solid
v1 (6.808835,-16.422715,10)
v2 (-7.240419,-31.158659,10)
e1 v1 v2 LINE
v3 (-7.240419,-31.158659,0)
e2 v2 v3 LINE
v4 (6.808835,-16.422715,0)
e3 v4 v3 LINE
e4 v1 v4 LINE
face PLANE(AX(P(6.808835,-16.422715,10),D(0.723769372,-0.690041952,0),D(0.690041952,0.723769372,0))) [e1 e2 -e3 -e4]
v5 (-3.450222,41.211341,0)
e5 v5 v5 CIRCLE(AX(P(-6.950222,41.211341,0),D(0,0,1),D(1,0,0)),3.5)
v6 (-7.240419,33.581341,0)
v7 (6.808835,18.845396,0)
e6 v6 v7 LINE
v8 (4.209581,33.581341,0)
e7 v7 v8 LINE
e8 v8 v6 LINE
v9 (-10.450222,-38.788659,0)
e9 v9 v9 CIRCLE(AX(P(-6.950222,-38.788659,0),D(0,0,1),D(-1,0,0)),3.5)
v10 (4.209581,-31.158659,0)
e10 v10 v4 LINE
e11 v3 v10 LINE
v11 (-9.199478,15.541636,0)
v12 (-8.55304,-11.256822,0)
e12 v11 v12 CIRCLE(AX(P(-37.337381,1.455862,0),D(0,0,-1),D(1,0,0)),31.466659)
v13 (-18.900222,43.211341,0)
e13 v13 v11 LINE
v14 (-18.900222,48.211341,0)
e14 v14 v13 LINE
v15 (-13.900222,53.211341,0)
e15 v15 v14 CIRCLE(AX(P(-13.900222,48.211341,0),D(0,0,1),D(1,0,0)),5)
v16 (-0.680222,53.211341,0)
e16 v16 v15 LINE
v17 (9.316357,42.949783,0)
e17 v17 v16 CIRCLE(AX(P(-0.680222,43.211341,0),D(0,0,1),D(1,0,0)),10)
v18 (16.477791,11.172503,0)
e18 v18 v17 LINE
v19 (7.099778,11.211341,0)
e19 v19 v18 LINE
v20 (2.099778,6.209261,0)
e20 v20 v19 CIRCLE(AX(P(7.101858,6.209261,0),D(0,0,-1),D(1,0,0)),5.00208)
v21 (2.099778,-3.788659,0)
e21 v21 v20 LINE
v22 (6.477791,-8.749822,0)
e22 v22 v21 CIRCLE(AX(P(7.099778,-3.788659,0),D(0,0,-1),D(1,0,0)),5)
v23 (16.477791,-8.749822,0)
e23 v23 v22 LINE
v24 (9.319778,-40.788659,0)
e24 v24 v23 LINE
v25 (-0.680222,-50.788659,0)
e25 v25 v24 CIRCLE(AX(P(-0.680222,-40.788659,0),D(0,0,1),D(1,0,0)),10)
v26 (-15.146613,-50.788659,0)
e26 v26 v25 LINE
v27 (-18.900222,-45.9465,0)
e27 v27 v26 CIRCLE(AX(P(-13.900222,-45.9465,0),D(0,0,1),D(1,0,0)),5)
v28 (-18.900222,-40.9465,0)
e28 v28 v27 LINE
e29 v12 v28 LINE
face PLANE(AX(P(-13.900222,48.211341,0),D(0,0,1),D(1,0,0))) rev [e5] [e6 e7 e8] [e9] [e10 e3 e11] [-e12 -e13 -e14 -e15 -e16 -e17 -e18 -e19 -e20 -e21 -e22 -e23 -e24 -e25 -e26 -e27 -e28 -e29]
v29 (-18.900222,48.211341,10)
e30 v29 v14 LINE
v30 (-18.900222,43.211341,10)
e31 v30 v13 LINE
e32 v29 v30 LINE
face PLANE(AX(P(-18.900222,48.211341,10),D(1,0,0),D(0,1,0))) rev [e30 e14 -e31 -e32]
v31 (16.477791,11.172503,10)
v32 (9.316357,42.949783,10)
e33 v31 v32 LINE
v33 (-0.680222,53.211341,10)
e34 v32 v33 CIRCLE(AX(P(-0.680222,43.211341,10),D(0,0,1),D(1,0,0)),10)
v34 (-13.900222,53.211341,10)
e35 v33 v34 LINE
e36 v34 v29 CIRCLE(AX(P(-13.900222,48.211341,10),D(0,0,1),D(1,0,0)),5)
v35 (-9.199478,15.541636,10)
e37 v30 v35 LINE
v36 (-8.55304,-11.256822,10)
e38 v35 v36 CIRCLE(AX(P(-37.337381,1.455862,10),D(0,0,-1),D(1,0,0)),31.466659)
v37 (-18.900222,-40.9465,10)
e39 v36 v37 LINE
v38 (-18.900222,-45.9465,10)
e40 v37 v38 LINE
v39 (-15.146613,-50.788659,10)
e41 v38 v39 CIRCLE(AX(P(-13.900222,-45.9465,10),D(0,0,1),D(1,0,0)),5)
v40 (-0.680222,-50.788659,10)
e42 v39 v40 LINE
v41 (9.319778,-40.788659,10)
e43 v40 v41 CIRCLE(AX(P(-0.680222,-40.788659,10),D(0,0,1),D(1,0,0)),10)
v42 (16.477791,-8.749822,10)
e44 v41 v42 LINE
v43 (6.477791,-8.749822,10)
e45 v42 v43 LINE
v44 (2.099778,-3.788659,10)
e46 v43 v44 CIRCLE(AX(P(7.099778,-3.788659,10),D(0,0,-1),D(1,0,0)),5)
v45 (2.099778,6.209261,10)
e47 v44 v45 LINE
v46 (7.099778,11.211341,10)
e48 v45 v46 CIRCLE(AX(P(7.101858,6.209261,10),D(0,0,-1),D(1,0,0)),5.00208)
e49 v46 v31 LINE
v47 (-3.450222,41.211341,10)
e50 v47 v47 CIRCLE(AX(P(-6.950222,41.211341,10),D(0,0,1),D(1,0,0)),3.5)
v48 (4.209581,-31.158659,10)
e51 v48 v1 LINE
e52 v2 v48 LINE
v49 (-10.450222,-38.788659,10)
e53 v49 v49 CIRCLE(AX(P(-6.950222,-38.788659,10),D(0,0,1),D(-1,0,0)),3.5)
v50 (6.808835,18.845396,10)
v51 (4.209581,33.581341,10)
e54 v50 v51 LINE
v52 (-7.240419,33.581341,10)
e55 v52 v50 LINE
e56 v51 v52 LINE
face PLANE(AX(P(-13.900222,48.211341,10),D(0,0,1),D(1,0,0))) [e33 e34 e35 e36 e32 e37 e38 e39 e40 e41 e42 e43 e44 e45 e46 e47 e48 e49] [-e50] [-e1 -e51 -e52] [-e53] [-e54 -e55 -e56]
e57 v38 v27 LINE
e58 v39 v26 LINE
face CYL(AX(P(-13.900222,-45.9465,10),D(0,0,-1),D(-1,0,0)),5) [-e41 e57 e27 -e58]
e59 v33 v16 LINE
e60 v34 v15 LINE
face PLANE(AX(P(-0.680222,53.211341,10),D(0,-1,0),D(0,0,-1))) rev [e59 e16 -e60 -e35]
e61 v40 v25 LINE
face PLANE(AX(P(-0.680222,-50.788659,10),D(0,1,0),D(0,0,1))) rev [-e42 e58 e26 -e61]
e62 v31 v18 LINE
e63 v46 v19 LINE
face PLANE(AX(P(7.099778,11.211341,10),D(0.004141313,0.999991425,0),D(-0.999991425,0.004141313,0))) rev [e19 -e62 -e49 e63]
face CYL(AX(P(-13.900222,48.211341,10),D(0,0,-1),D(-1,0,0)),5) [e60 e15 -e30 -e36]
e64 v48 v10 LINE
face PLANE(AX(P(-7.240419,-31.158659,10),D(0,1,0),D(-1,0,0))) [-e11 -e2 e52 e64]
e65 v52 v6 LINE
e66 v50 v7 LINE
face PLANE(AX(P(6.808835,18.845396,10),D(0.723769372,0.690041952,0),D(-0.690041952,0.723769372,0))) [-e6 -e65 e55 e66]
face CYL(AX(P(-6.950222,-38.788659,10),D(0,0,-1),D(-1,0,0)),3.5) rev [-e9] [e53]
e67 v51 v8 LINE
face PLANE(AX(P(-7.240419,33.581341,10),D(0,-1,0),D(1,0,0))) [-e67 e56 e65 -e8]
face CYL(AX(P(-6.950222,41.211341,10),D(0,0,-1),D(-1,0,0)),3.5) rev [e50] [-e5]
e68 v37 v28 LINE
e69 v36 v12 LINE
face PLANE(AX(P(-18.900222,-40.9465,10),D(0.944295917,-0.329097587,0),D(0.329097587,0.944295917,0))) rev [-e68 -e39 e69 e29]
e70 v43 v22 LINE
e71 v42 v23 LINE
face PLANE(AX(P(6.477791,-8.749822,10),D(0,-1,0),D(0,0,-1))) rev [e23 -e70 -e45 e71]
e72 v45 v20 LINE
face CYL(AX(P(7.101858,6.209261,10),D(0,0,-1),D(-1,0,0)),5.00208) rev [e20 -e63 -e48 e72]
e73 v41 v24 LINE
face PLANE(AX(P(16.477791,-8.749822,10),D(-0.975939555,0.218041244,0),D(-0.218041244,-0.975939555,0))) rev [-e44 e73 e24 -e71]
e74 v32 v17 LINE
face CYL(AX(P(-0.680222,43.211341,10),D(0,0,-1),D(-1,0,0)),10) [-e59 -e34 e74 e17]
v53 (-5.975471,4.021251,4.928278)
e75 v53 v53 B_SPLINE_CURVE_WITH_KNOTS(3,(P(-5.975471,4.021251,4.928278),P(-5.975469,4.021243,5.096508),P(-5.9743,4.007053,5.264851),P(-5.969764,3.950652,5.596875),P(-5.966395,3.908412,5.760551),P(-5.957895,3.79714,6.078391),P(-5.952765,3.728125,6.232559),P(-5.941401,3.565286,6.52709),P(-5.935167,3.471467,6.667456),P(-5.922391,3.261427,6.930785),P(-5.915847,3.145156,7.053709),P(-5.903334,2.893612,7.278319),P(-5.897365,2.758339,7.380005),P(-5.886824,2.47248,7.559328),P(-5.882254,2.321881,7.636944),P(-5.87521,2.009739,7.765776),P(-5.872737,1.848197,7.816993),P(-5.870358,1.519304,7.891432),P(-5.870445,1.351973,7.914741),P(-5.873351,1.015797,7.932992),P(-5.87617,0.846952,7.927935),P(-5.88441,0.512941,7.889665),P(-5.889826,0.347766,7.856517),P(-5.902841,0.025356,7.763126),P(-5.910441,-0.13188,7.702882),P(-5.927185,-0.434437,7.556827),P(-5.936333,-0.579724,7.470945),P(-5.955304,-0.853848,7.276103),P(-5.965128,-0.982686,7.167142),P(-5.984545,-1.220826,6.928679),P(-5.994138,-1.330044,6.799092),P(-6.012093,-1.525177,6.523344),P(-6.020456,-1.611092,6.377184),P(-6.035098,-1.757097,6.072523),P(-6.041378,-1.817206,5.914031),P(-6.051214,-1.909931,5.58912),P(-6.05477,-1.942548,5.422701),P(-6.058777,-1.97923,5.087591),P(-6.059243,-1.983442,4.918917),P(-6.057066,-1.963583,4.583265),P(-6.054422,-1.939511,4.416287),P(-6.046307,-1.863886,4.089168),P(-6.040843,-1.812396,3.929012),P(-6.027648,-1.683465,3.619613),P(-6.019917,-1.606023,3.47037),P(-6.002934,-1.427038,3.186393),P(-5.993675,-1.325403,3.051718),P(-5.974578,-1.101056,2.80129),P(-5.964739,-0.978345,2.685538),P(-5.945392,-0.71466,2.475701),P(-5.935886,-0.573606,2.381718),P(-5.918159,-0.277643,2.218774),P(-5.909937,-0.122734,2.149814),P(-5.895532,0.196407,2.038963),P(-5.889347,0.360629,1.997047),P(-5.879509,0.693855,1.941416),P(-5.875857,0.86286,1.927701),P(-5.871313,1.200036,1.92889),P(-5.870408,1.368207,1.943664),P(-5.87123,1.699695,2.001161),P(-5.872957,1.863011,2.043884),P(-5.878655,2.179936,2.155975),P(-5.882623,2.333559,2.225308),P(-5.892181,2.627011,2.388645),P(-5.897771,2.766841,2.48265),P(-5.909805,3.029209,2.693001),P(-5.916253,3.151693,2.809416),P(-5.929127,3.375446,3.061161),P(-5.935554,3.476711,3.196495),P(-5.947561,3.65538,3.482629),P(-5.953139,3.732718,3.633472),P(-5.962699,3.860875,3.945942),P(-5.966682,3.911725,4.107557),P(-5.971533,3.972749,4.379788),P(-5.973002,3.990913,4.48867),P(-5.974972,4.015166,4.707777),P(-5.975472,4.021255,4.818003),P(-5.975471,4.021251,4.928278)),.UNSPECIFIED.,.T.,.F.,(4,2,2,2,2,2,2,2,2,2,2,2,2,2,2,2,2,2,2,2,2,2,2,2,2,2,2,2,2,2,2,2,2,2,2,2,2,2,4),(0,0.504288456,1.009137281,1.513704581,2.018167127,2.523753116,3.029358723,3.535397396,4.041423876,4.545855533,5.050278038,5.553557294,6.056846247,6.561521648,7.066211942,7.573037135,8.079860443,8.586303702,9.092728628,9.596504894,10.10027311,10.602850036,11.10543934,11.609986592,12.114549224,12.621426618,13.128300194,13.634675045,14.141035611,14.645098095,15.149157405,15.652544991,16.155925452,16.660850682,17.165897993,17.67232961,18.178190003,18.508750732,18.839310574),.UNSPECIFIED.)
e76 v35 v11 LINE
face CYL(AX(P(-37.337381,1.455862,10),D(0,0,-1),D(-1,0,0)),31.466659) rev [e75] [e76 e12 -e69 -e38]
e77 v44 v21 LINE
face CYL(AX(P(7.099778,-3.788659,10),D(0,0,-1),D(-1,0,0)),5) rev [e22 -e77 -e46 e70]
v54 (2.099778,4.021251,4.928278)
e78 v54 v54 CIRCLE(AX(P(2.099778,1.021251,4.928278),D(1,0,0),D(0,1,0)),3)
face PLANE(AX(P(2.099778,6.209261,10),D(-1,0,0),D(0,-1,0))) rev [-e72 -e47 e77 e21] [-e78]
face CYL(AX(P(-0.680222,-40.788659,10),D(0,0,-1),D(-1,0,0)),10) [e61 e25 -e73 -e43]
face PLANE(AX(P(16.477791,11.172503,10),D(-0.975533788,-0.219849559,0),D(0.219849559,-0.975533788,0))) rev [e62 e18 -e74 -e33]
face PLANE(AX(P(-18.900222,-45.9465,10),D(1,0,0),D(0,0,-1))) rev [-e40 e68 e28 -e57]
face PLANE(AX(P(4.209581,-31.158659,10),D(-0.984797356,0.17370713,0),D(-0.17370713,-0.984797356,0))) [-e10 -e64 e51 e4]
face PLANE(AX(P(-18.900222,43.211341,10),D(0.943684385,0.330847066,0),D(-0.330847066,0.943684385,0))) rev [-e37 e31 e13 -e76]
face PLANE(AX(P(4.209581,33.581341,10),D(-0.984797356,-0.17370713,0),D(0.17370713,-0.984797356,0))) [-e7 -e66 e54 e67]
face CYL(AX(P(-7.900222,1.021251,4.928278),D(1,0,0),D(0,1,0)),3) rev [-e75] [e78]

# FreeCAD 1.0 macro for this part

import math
import FreeCAD as App
import Part
import Sketcher
from FreeCAD import Vector

doc = App.newDocument("Part")
params = doc.addObject("Spreadsheet::Sheet", "Params")
for row, (alias, value) in enumerate([
    ("sketch1_diameter", "7 mm"),
    ("sketch1_radius", "10 mm"),
    ("sketch1_radius2", "5 mm"),
    ("sketch1_width", "10 mm"),
    ("sketch1_width2", "13.22 mm"),
    ("pad1_length", "10 mm"),
    ("sketch2_diameter", "6 mm"),
    ("pocket1_length", "10 mm"),
], start=1):
    params.set(f"A{row}", alias)
    params.set(f"B{row}", "=" + value)
    params.setAlias(f"B{row}", alias)

body = doc.addObject("PartDesign::Body", "Body")

sketch1 = body.newObject("Sketcher::SketchObject", "Sketch")
sketch1.AttachmentSupport = (doc.getObject("XY_Plane"), [""])
sketch1.MapMode = "FlatFace"
sketch1.addGeometry([
    Part.LineSegment(Vector(16.477791, 11.172503, 0), Vector(9.316357, 42.949783, 0)),
    Part.ArcOfCircle(Part.Circle(Vector(-0.680222, 43.211341, 0), Vector(0, 0, 1), 10), math.radians(-1.498785), math.radians(90)),
    Part.LineSegment(Vector(-0.680222, 53.211341, 0), Vector(-13.900222, 53.211341, 0)),
    Part.ArcOfCircle(Part.Circle(Vector(-13.900222, 48.211341, 0), Vector(0, 0, 1), 5), math.radians(90), math.radians(180)),
    Part.LineSegment(Vector(-18.900222, 48.211341, 0), Vector(-18.900222, 43.211341, 0)),
    Part.LineSegment(Vector(-18.900222, 43.211341, 0), Vector(-9.199478, 15.541636, 0)),
    Part.ArcOfCircle(Part.Circle(Vector(-37.337381, 1.455862, 0), Vector(0, 0, 1), 31.466659), math.radians(-23.828784), math.radians(26.592448)),
    Part.LineSegment(Vector(-8.55304, -11.256822, 0), Vector(-18.900222, -40.9465, 0)),
    Part.LineSegment(Vector(-18.900222, -40.9465, 0), Vector(-18.900222, -45.9465, 0)),
    Part.ArcOfCircle(Part.Circle(Vector(-13.900222, -45.9465, 0), Vector(0, 0, 1), 5), math.radians(-180), math.radians(-104.434802)),
    Part.LineSegment(Vector(-15.146613, -50.788659, 0), Vector(-0.680222, -50.788659, 0)),
    Part.ArcOfCircle(Part.Circle(Vector(-0.680222, -40.788659, 0), Vector(0, 0, 1), 10), math.radians(-90), math.radians(0)),
    Part.LineSegment(Vector(9.319778, -40.788659, 0), Vector(16.477791, -8.749822, 0)),
    Part.LineSegment(Vector(16.477791, -8.749822, 0), Vector(6.477791, -8.749822, 0)),
    Part.ArcOfCircle(Part.Circle(Vector(7.099778, -3.788659, 0), Vector(0, 0, 1), 5), math.radians(-180), math.radians(-97.145958)),
    Part.LineSegment(Vector(2.099778, -3.788659, 0), Vector(2.099778, 6.209261, 0)),
    Part.ArcOfCircle(Part.Circle(Vector(7.101858, 6.209261, 0), Vector(0, 0, 1), 5.00208), math.radians(90.023821), math.radians(180)),
    Part.LineSegment(Vector(7.099778, 11.211341, 0), Vector(16.477791, 11.172503, 0)),
    Part.Circle(Vector(-6.950222, -38.788659, 0), Vector(0, 0, 1), 3.5),
    Part.LineSegment(Vector(6.808835, -16.422715, 0), Vector(4.209581, -31.158659, 0)),
    Part.LineSegment(Vector(4.209581, -31.158659, 0), Vector(-7.240419, -31.158659, 0)),
    Part.LineSegment(Vector(-7.240419, -31.158659, 0), Vector(6.808835, -16.422715, 0)),
    Part.Circle(Vector(-6.950222, 41.211341, 0), Vector(0, 0, 1), 3.5),
    Part.LineSegment(Vector(6.808835, 18.845396, 0), Vector(-7.240419, 33.581341, 0)),
    Part.LineSegment(Vector(-7.240419, 33.581341, 0), Vector(4.209581, 33.581341, 0)),
    Part.LineSegment(Vector(4.209581, 33.581341, 0), Vector(6.808835, 18.845396, 0)),
], False)
sketch1.addConstraint([
    Sketcher.Constraint("Coincident", 0, 2, 1, 1),
    Sketcher.Constraint("Tangent", 1, 2, 2, 1),
    Sketcher.Constraint("Tangent", 2, 2, 3, 1),
    Sketcher.Constraint("Tangent", 3, 2, 4, 1),
    Sketcher.Constraint("Coincident", 4, 2, 5, 1),
    Sketcher.Constraint("Coincident", 5, 2, 6, 2),
    Sketcher.Constraint("Coincident", 6, 1, 7, 1),
    Sketcher.Constraint("Coincident", 7, 2, 8, 1),
    Sketcher.Constraint("Tangent", 8, 2, 9, 1),
    Sketcher.Constraint("Coincident", 9, 2, 10, 1),
    Sketcher.Constraint("Tangent", 10, 2, 11, 1),
    Sketcher.Constraint("Coincident", 11, 2, 12, 1),
    Sketcher.Constraint("Coincident", 12, 2, 13, 1),
    Sketcher.Constraint("Coincident", 13, 2, 14, 2),
    Sketcher.Constraint("Tangent", 14, 1, 15, 1),
    Sketcher.Constraint("Tangent", 15, 2, 16, 2),
    Sketcher.Constraint("Coincident", 16, 1, 17, 1),
    Sketcher.Constraint("Coincident", 17, 2, 0, 1),
    Sketcher.Constraint("Coincident", 19, 2, 20, 1),
    Sketcher.Constraint("Coincident", 20, 2, 21, 1),
    Sketcher.Constraint("Coincident", 21, 2, 19, 1),
    Sketcher.Constraint("Coincident", 23, 2, 24, 1),
    Sketcher.Constraint("Coincident", 24, 2, 25, 1),
    Sketcher.Constraint("Coincident", 25, 2, 23, 1),
    Sketcher.Constraint("Horizontal", 2),
    Sketcher.Constraint("Vertical", 4),
    Sketcher.Constraint("Vertical", 8),
    Sketcher.Constraint("Horizontal", 10),
    Sketcher.Constraint("Horizontal", 13),
    Sketcher.Constraint("Vertical", 15),
    Sketcher.Constraint("Horizontal", 20),
    Sketcher.Constraint("Horizontal", 24),
    Sketcher.Constraint("Equal", 3, 9),
    Sketcher.Constraint("Equal", 1, 11),
    Sketcher.Constraint("Equal", 9, 14),
    Sketcher.Constraint("Equal", 18, 22),
    Sketcher.Constraint("Horizontal", 1, 3, 4, 2),
    Sketcher.Constraint("Vertical", 3, 3, 9, 3),
    Sketcher.Constraint("Vertical", 1, 3, 11, 3),
    Sketcher.Constraint("Vertical", 18, 3, 22, 3),
    Sketcher.Constraint("Vertical", 14, 3, 16, 1),
    Sketcher.Constraint("Vertical", 12, 2, 17, 2),
    Sketcher.Constraint("Vertical", 20, 2, 23, 2),
    Sketcher.Constraint("Vertical", 19, 2, 24, 2),
    Sketcher.Constraint("Vertical", 21, 2, 25, 2),
    Sketcher.Constraint("Equal", 4, 8),
    Sketcher.Constraint("Equal", 21, 23),
    Sketcher.Constraint("Diameter", 18, 7.0),
    Sketcher.Constraint("Radius", 1, 10.0),
    Sketcher.Constraint("Radius", 3, 5.0),
    Sketcher.Constraint("DistanceX", 13, 2, 13, 1, 10.0),
    Sketcher.Constraint("DistanceY", 11, 3, 1, 3, 84.0),
    Sketcher.Constraint("DistanceY", 11, 3, 14, 3, 37.0),
    Sketcher.Constraint("DistanceX", 9, 3, 14, 3, 21.0),
    Sketcher.Constraint("DistanceY", 11, 3, 18, 3, 2.0),
    Sketcher.Constraint("DistanceY", 22, 3, 1, 3, 2.0),
    Sketcher.Constraint("DistanceY", 10, 2, 11, 2, 10.0),
    Sketcher.Constraint("DistanceY", 14, 3, 16, 1, 15.0),
    Sketcher.Constraint("DistanceX", 2, 2, 2, 1, 13.22),
    Sketcher.Constraint("DistanceX", 20, 2, 20, 1, 11.45),
    Sketcher.Constraint("Distance", 21, 20.36),
    Sketcher.Constraint("Radius", 6, 31.466659),
    Sketcher.Constraint("Radius", 16, 5.00208),
    Sketcher.Constraint("DistanceX", 18, 3, 11, 3, 6.27),
    Sketcher.Constraint("DistanceY", 11, 3, 19, 2, 9.63),
    Sketcher.Constraint("DistanceY", 23, 2, 22, 3, 7.63),
    Sketcher.Constraint("DistanceY", 6, 1, 12, 2, 2.507),
    Sketcher.Constraint("DistanceX", 10, 1, 10, 2, 14.466391),
    Sketcher.Constraint("DistanceY", 9, 3, -1, 1, 45.9465),
    Sketcher.Constraint("DistanceY", 6, 3, 16, 3, 4.753399),
    Sketcher.Constraint("DistanceX", 16, 3, 0, 2, 2.214499),
    Sketcher.Constraint("DistanceX", 6, 1, 16, 3, 15.654898),
    Sketcher.Constraint("Distance", 0, 32.574249),
    Sketcher.Constraint("Distance", 5, 29.320931),
    Sketcher.Constraint("Distance", 12, 32.828711),
    Sketcher.Constraint("Distance", 19, 14.963428),
    Sketcher.Constraint("DistanceX", 1, 3, -1, 1, 0.680222),
    Sketcher.Constraint("DistanceX", -1, 1, 19, 2, 4.209581),
])
sketch1.setExpression("Constraints[47]", "Params.sketch1_diameter")
sketch1.setExpression("Constraints[48]", "Params.sketch1_radius")
sketch1.setExpression("Constraints[49]", "Params.sketch1_radius2")
sketch1.setExpression("Constraints[50]", "Params.sketch1_width")
sketch1.setExpression("Constraints[58]", "Params.sketch1_width2")
pad1 = body.newObject("PartDesign::Pad", "Pad")
pad1.Profile = sketch1
pad1.setExpression("Length", "Params.pad1_length")

sketch2 = body.newObject("Sketcher::SketchObject", "Sketch001")
sketch2.AttachmentSupport = (doc.getObject("YZ_Plane"), [""])
sketch2.MapMode = "FlatFace"
sketch2.AttachmentOffset = App.Placement(Vector(0, 0, 2.099778), App.Rotation())
sketch2.addGeometry(Part.Circle(Vector(1.021251, 4.928278, 0), Vector(0, 0, 1), 3), False)
sketch2.addConstraint([
    Sketcher.Constraint("Diameter", 0, 6.0),
    Sketcher.Constraint("DistanceX", -1, 1, 0, 3, 1.021251),
    Sketcher.Constraint("DistanceY", -1, 1, 0, 3, 4.928278),
])
sketch2.setExpression("Constraints[0]", "Params.sketch2_diameter")
pocket1 = body.newObject("PartDesign::Pocket", "Pocket")
pocket1.Profile = sketch2
pocket1.setExpression("Length", "Params.pocket1_length")

doc.recompute()
